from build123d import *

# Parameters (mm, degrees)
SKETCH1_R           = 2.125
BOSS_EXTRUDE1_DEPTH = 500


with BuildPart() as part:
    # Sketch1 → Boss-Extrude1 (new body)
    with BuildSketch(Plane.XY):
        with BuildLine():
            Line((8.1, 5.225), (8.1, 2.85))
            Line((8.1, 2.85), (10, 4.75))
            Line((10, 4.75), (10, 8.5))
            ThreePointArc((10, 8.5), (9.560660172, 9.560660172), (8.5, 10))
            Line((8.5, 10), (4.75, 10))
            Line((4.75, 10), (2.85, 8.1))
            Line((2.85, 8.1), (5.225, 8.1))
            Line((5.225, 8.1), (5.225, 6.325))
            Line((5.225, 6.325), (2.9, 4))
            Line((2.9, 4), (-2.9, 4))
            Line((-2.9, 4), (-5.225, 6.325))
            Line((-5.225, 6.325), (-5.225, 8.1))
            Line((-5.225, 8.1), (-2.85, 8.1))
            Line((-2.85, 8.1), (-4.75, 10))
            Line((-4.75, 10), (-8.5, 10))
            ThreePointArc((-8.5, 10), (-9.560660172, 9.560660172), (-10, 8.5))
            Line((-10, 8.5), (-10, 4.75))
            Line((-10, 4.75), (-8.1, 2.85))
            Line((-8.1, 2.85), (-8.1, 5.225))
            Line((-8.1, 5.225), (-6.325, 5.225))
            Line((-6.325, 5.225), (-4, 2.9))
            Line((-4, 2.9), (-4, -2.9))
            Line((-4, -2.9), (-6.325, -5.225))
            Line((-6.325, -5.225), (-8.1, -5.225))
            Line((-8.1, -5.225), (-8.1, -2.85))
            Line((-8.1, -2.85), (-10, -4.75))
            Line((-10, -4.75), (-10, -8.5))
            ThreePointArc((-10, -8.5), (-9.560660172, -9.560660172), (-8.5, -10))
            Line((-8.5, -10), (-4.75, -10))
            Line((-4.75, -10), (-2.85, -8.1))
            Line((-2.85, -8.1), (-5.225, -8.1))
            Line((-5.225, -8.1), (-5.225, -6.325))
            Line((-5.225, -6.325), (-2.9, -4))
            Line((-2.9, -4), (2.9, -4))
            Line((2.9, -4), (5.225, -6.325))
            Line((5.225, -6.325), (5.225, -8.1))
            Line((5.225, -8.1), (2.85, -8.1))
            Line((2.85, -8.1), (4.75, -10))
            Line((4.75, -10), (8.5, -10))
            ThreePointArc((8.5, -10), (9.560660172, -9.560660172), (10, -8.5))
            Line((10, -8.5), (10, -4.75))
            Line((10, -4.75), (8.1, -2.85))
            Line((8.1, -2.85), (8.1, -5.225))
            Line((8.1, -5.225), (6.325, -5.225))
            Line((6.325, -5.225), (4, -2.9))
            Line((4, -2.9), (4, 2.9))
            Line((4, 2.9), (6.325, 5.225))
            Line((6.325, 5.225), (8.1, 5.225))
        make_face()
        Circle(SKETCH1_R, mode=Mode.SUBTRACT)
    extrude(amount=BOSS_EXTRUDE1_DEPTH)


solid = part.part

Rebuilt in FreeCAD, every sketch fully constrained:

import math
import FreeCAD as App
import Part
import Sketcher
from FreeCAD import Vector
Q = App.Units.Quantity

doc = App.newDocument("Part")
params = doc.addObject("Spreadsheet::Sheet", "Params")
for row, (alias, value) in enumerate([
    ("sketch1_radius", "1.5 mm"),
    ("sketch1_diameter", "4.25 mm"),
    ("sketch1_width", "5.8 mm"),
    ("sketch1_width2", "3.75 mm"),
    ("pad1_length", "500 mm"),
], start=1):
    params.set(f"A{row}", alias)
    params.set(f"B{row}", "=" + value)
    params.setAlias(f"B{row}", alias)

body = doc.addObject("PartDesign::Body", "Body")

# Sketch on XY plane
sketch1 = body.newObject("Sketcher::SketchObject", "Sketch")
sketch1.AttachmentSupport = (doc.getObject("XY_Plane"), [""])
sketch1.MapMode = "FlatFace"
sketch1.addGeometry(Part.LineSegment(Vector(8.1, 5.2, 0), Vector(8.1, 2.9, 0)), False)
sketch1.addGeometry(Part.LineSegment(Vector(8.1, 2.9, 0), Vector(10, 4.8, 0)), False)
sketch1.addGeometry(Part.LineSegment(Vector(10, 4.8, 0), Vector(10, 8.5, 0)), False)
sketch1.addGeometry(Part.ArcOfCircle(Part.Circle(Vector(8.5, 8.5, 0), Vector(0, 0, 1), 1.5), math.radians(0), math.radians(90)), False)
sketch1.addGeometry(Part.LineSegment(Vector(8.5, 10, 0), Vector(4.8, 10, 0)), False)
sketch1.addGeometry(Part.LineSegment(Vector(4.8, 10, 0), Vector(2.9, 8.1, 0)), False)
sketch1.addGeometry(Part.LineSegment(Vector(2.9, 8.1, 0), Vector(5.2, 8.1, 0)), False)
sketch1.addGeometry(Part.LineSegment(Vector(5.2, 8.1, 0), Vector(5.2, 6.3, 0)), False)
sketch1.addGeometry(Part.LineSegment(Vector(5.2, 6.3, 0), Vector(2.9, 4, 0)), False)
sketch1.addGeometry(Part.LineSegment(Vector(2.9, 4, 0), Vector(-2.9, 4, 0)), False)
sketch1.addGeometry(Part.LineSegment(Vector(-2.9, 4, 0), Vector(-5.2, 6.3, 0)), False)
sketch1.addGeometry(Part.LineSegment(Vector(-5.2, 6.3, 0), Vector(-5.2, 8.1, 0)), False)
sketch1.addGeometry(Part.LineSegment(Vector(-5.2, 8.1, 0), Vector(-2.9, 8.1, 0)), False)
sketch1.addGeometry(Part.LineSegment(Vector(-2.9, 8.1, 0), Vector(-4.8, 10, 0)), False)
sketch1.addGeometry(Part.LineSegment(Vector(-4.8, 10, 0), Vector(-8.5, 10, 0)), False)
sketch1.addGeometry(Part.ArcOfCircle(Part.Circle(Vector(-8.5, 8.5, 0), Vector(0, 0, 1), 1.5), math.radians(90), math.radians(180)), False)
sketch1.addGeometry(Part.LineSegment(Vector(-10, 8.5, 0), Vector(-10, 4.8, 0)), False)
sketch1.addGeometry(Part.LineSegment(Vector(-10, 4.8, 0), Vector(-8.1, 2.9, 0)), False)
sketch1.addGeometry(Part.LineSegment(Vector(-8.1, 2.9, 0), Vector(-8.1, 5.2, 0)), False)
sketch1.addGeometry(Part.LineSegment(Vector(-8.1, 5.2, 0), Vector(-6.3, 5.2, 0)), False)
sketch1.addGeometry(Part.LineSegment(Vector(-6.3, 5.2, 0), Vector(-4, 2.9, 0)), False)
sketch1.addGeometry(Part.LineSegment(Vector(-4, 2.9, 0), Vector(-4, -2.9, 0)), False)
sketch1.addGeometry(Part.LineSegment(Vector(-4, -2.9, 0), Vector(-6.3, -5.2, 0)), False)
sketch1.addGeometry(Part.LineSegment(Vector(-6.3, -5.2, 0), Vector(-8.1, -5.2, 0)), False)
sketch1.addGeometry(Part.LineSegment(Vector(-8.1, -5.2, 0), Vector(-8.1, -2.9, 0)), False)
sketch1.addGeometry(Part.LineSegment(Vector(-8.1, -2.9, 0), Vector(-10, -4.8, 0)), False)
sketch1.addGeometry(Part.LineSegment(Vector(-10, -4.8, 0), Vector(-10, -8.5, 0)), False)
sketch1.addGeometry(Part.ArcOfCircle(Part.Circle(Vector(-8.5, -8.5, 0), Vector(0, 0, 1), 1.5), math.radians(180), math.radians(270)), False)
sketch1.addGeometry(Part.LineSegment(Vector(-8.5, -10, 0), Vector(-4.8, -10, 0)), False)
sketch1.addGeometry(Part.LineSegment(Vector(-4.8, -10, 0), Vector(-2.9, -8.1, 0)), False)
sketch1.addGeometry(Part.LineSegment(Vector(-2.9, -8.1, 0), Vector(-5.2, -8.1, 0)), False)
sketch1.addGeometry(Part.LineSegment(Vector(-5.2, -8.1, 0), Vector(-5.2, -6.3, 0)), False)
sketch1.addGeometry(Part.LineSegment(Vector(-5.2, -6.3, 0), Vector(-2.9, -4, 0)), False)
sketch1.addGeometry(Part.LineSegment(Vector(-2.9, -4, 0), Vector(2.9, -4, 0)), False)
sketch1.addGeometry(Part.LineSegment(Vector(2.9, -4, 0), Vector(5.2, -6.3, 0)), False)
sketch1.addGeometry(Part.LineSegment(Vector(5.2, -6.3, 0), Vector(5.2, -8.1, 0)), False)
sketch1.addGeometry(Part.LineSegment(Vector(5.2, -8.1, 0), Vector(2.9, -8.1, 0)), False)
sketch1.addGeometry(Part.LineSegment(Vector(2.9, -8.1, 0), Vector(4.8, -10, 0)), False)
sketch1.addGeometry(Part.LineSegment(Vector(4.8, -10, 0), Vector(8.5, -10, 0)), False)
sketch1.addGeometry(Part.ArcOfCircle(Part.Circle(Vector(8.5, -8.5, 0), Vector(0, 0, 1), 1.5), math.radians(-90), math.radians(0)), False)
sketch1.addGeometry(Part.LineSegment(Vector(10, -8.5, 0), Vector(10, -4.8, 0)), False)
sketch1.addGeometry(Part.LineSegment(Vector(10, -4.8, 0), Vector(8.1, -2.9, 0)), False)
sketch1.addGeometry(Part.LineSegment(Vector(8.1, -2.9, 0), Vector(8.1, -5.2, 0)), False)
sketch1.addGeometry(Part.LineSegment(Vector(8.1, -5.2, 0), Vector(6.3, -5.2, 0)), False)
sketch1.addGeometry(Part.LineSegment(Vector(6.3, -5.2, 0), Vector(4, -2.9, 0)), False)
sketch1.addGeometry(Part.LineSegment(Vector(4, -2.9, 0), Vector(4, 2.9, 0)), False)
sketch1.addGeometry(Part.LineSegment(Vector(4, 2.9, 0), Vector(6.3, 5.2, 0)), False)
sketch1.addGeometry(Part.LineSegment(Vector(6.3, 5.2, 0), Vector(8.1, 5.2, 0)), False)
sketch1.addGeometry(Part.Circle(Vector(0, 0, 0), Vector(0, 0, 1), 2.1), False)
sketch1.addConstraint(Sketcher.Constraint("Coincident", 0, 2, 1, 1))
sketch1.addConstraint(Sketcher.Constraint("Coincident", 1, 2, 2, 1))
sketch1.addConstraint(Sketcher.Constraint("Tangent", 2, 2, 3, 1))
sketch1.addConstraint(Sketcher.Constraint("Tangent", 3, 2, 4, 1))
sketch1.addConstraint(Sketcher.Constraint("Coincident", 4, 2, 5, 1))
sketch1.addConstraint(Sketcher.Constraint("Coincident", 5, 2, 6, 1))
sketch1.addConstraint(Sketcher.Constraint("Coincident", 6, 2, 7, 1))
sketch1.addConstraint(Sketcher.Constraint("Coincident", 7, 2, 8, 1))
sketch1.addConstraint(Sketcher.Constraint("Coincident", 8, 2, 9, 1))
sketch1.addConstraint(Sketcher.Constraint("Coincident", 9, 2, 10, 1))
sketch1.addConstraint(Sketcher.Constraint("Coincident", 10, 2, 11, 1))
sketch1.addConstraint(Sketcher.Constraint("Coincident", 11, 2, 12, 1))
sketch1.addConstraint(Sketcher.Constraint("Coincident", 12, 2, 13, 1))
sketch1.addConstraint(Sketcher.Constraint("Coincident", 13, 2, 14, 1))
sketch1.addConstraint(Sketcher.Constraint("Tangent", 14, 2, 15, 1))
sketch1.addConstraint(Sketcher.Constraint("Tangent", 15, 2, 16, 1))
sketch1.addConstraint(Sketcher.Constraint("Coincident", 16, 2, 17, 1))
sketch1.addConstraint(Sketcher.Constraint("Coincident", 17, 2, 18, 1))
sketch1.addConstraint(Sketcher.Constraint("Coincident", 18, 2, 19, 1))
sketch1.addConstraint(Sketcher.Constraint("Coincident", 19, 2, 20, 1))
sketch1.addConstraint(Sketcher.Constraint("Coincident", 20, 2, 21, 1))
sketch1.addConstraint(Sketcher.Constraint("Coincident", 21, 2, 22, 1))
sketch1.addConstraint(Sketcher.Constraint("Coincident", 22, 2, 23, 1))
sketch1.addConstraint(Sketcher.Constraint("Coincident", 23, 2, 24, 1))
sketch1.addConstraint(Sketcher.Constraint("Coincident", 24, 2, 25, 1))
sketch1.addConstraint(Sketcher.Constraint("Coincident", 25, 2, 26, 1))
sketch1.addConstraint(Sketcher.Constraint("Tangent", 26, 2, 27, 1))
sketch1.addConstraint(Sketcher.Constraint("Tangent", 27, 2, 28, 1))
sketch1.addConstraint(Sketcher.Constraint("Coincident", 28, 2, 29, 1))
sketch1.addConstraint(Sketcher.Constraint("Coincident", 29, 2, 30, 1))
sketch1.addConstraint(Sketcher.Constraint("Coincident", 30, 2, 31, 1))
sketch1.addConstraint(Sketcher.Constraint("Coincident", 31, 2, 32, 1))
sketch1.addConstraint(Sketcher.Constraint("Coincident", 32, 2, 33, 1))
sketch1.addConstraint(Sketcher.Constraint("Coincident", 33, 2, 34, 1))
sketch1.addConstraint(Sketcher.Constraint("Coincident", 34, 2, 35, 1))
sketch1.addConstraint(Sketcher.Constraint("Coincident", 35, 2, 36, 1))
sketch1.addConstraint(Sketcher.Constraint("Coincident", 36, 2, 37, 1))
sketch1.addConstraint(Sketcher.Constraint("Coincident", 37, 2, 38, 1))
sketch1.addConstraint(Sketcher.Constraint("Tangent", 38, 2, 39, 1))
sketch1.addConstraint(Sketcher.Constraint("Tangent", 39, 2, 40, 1))
sketch1.addConstraint(Sketcher.Constraint("Coincident", 40, 2, 41, 1))
sketch1.addConstraint(Sketcher.Constraint("Coincident", 41, 2, 42, 1))
sketch1.addConstraint(Sketcher.Constraint("Coincident", 42, 2, 43, 1))
sketch1.addConstraint(Sketcher.Constraint("Coincident", 43, 2, 44, 1))
sketch1.addConstraint(Sketcher.Constraint("Coincident", 44, 2, 45, 1))
sketch1.addConstraint(Sketcher.Constraint("Coincident", 45, 2, 46, 1))
sketch1.addConstraint(Sketcher.Constraint("Coincident", 46, 2, 47, 1))
sketch1.addConstraint(Sketcher.Constraint("Coincident", 47, 2, 0, 1))
sketch1.addConstraint(Sketcher.Constraint("Vertical", 0))
sketch1.addConstraint(Sketcher.Constraint("Vertical", 2))
sketch1.addConstraint(Sketcher.Constraint("Horizontal", 4))
sketch1.addConstraint(Sketcher.Constraint("Horizontal", 6))
sketch1.addConstraint(Sketcher.Constraint("Vertical", 7))
sketch1.addConstraint(Sketcher.Constraint("Horizontal", 9))
sketch1.addConstraint(Sketcher.Constraint("Vertical", 11))
sketch1.addConstraint(Sketcher.Constraint("Horizontal", 12))
sketch1.addConstraint(Sketcher.Constraint("Horizontal", 14))
sketch1.addConstraint(Sketcher.Constraint("Vertical", 16))
sketch1.addConstraint(Sketcher.Constraint("Vertical", 18))
sketch1.addConstraint(Sketcher.Constraint("Horizontal", 19))
sketch1.addConstraint(Sketcher.Constraint("Vertical", 21))
sketch1.addConstraint(Sketcher.Constraint("Horizontal", 23))
sketch1.addConstraint(Sketcher.Constraint("Vertical", 24))
sketch1.addConstraint(Sketcher.Constraint("Vertical", 26))
sketch1.addConstraint(Sketcher.Constraint("Horizontal", 28))
sketch1.addConstraint(Sketcher.Constraint("Horizontal", 30))
sketch1.addConstraint(Sketcher.Constraint("Vertical", 31))
sketch1.addConstraint(Sketcher.Constraint("Horizontal", 33))
sketch1.addConstraint(Sketcher.Constraint("Vertical", 35))
sketch1.addConstraint(Sketcher.Constraint("Horizontal", 36))
sketch1.addConstraint(Sketcher.Constraint("Horizontal", 38))
sketch1.addConstraint(Sketcher.Constraint("Vertical", 40))
sketch1.addConstraint(Sketcher.Constraint("Vertical", 42))
sketch1.addConstraint(Sketcher.Constraint("Horizontal", 43))
sketch1.addConstraint(Sketcher.Constraint("Vertical", 45))
sketch1.addConstraint(Sketcher.Constraint("Horizontal", 47))
sketch1.addConstraint(Sketcher.Constraint("Coincident", 48, 3, -1, 1))
sketch1.addConstraint(Sketcher.Constraint("Equal", 3, 15))
sketch1.addConstraint(Sketcher.Constraint("Equal", 15, 27))
sketch1.addConstraint(Sketcher.Constraint("Equal", 27, 39))
sketch1.addConstraint(Sketcher.Constraint("Symmetric", 3, 3, 27, 3, -1, 1))
sketch1.addConstraint(Sketcher.Constraint("Symmetric", 15, 3, 39, 3, -1, 1))
sketch1.addConstraint(Sketcher.Constraint("Symmetric", 0, 2, 24, 2, -1, 1))
sketch1.addConstraint(Sketcher.Constraint("Symmetric", 5, 2, 29, 2, -1, 1))
sketch1.addConstraint(Sketcher.Constraint("Symmetric", 7, 2, 31, 2, -1, 1))
sketch1.addConstraint(Sketcher.Constraint("Symmetric", 8, 2, 32, 2, -1, 1))
sketch1.addConstraint(Sketcher.Constraint("Symmetric", 10, 2, 34, 2, -1, 1))
sketch1.addConstraint(Sketcher.Constraint("Symmetric", 12, 2, 36, 2, -1, 1))
sketch1.addConstraint(Sketcher.Constraint("Symmetric", 17, 2, 41, 2, -1, 1))
sketch1.addConstraint(Sketcher.Constraint("Symmetric", 19, 2, 43, 2, -1, 1))
sketch1.addConstraint(Sketcher.Constraint("Symmetric", 20, 2, 44, 2, -1, 1))
sketch1.addConstraint(Sketcher.Constraint("Symmetric", 22, 2, 46, 2, -1, 1))
sketch1.addConstraint(Sketcher.Constraint("Symmetric", 3, 3, 15, 3, -2))
sketch1.addConstraint(Sketcher.Constraint("Symmetric", 7, 2, 10, 2, -2))
sketch1.addConstraint(Sketcher.Constraint("Symmetric", 5, 2, 12, 2, -2))
sketch1.addConstraint(Sketcher.Constraint("Symmetric", 0, 2, 17, 2, -2))
sketch1.addConstraint(Sketcher.Constraint("Symmetric", 22, 2, 43, 2, -2))
sketch1.addConstraint(Sketcher.Constraint("Parallel", 1, 5))
sketch1.addConstraint(Sketcher.Constraint("Parallel", 5, 8))
sketch1.addConstraint(Sketcher.Constraint("Perpendicular", 8, 10))
sketch1.addConstraint(Sketcher.Constraint("Parallel", 10, 13))
sketch1.addConstraint(Sketcher.Constraint("Parallel", 13, 17))
sketch1.addConstraint(Sketcher.Constraint("Parallel", 17, 20))
sketch1.addConstraint(Sketcher.Constraint("Perpendicular", 20, 22))
sketch1.addConstraint(Sketcher.Constraint("Parallel", 22, 25))
sketch1.addConstraint(Sketcher.Constraint("Parallel", 25, 29))
sketch1.addConstraint(Sketcher.Constraint("Perpendicular", 32, 34))
sketch1.addConstraint(Sketcher.Constraint("Parallel", 34, 37))
sketch1.addConstraint(Sketcher.Constraint("Parallel", 37, 41))
sketch1.addConstraint(Sketcher.Constraint("Perpendicular", 44, 46))
sketch1.addConstraint(Sketcher.Constraint("Horizontal", 1, 2, 16, 2))
sketch1.addConstraint(Sketcher.Constraint("Equal", 36, 0))
sketch1.addConstraint(Sketcher.Constraint("Equal", 38, 2))
sketch1.addConstraint(Sketcher.Constraint("Equal", 47, 7))
sketch1.addConstraint(Sketcher.Constraint("Equal", 33, 21))
sketch1.addConstraint(Sketcher.Constraint("Equal", 1, 5))
sketch1.addConstraint(Sketcher.Constraint("Equal", 10, 20))
sketch1.addConstraint(Sketcher.Constraint("Radius", 3, Q("1.5 mm")))
sketch1.addConstraint(Sketcher.Constraint("Diameter", 48, Q("4.25 mm")))
sketch1.addConstraint(Sketcher.Constraint("DistanceX", 9, 2, 9, 1, Q("5.8 mm")))
sketch1.addConstraint(Sketcher.Constraint("DistanceX", -1, 1, 1, 2, Q("10 mm")))
sketch1.addConstraint(Sketcher.Constraint("DistanceY", -1, 1, 8, 2, Q("4 mm")))
sketch1.addConstraint(Sketcher.Constraint("DistanceX", 4, 2, 4, 1, Q("3.75 mm")))
sketch1.addConstraint(Sketcher.Constraint("DistanceX", -1, 1, 0, 2, Q("8.1 mm")))
sketch1.addConstraint(Sketcher.Constraint("DistanceX", 6, 1, 6, 2, Q("2.375 mm")))
sketch1.setExpression("Constraints[117]", "Params.sketch1_radius")
sketch1.setExpression("Constraints[118]", "Params.sketch1_diameter")
sketch1.setExpression("Constraints[119]", "Params.sketch1_width")
sketch1.setExpression("Constraints[122]", "Params.sketch1_width2")
pad1 = body.newObject("PartDesign::Pad", "Pad")
pad1.Profile = sketch1
pad1.setExpression("Length", "Params.pad1_length")

doc.recompute()
